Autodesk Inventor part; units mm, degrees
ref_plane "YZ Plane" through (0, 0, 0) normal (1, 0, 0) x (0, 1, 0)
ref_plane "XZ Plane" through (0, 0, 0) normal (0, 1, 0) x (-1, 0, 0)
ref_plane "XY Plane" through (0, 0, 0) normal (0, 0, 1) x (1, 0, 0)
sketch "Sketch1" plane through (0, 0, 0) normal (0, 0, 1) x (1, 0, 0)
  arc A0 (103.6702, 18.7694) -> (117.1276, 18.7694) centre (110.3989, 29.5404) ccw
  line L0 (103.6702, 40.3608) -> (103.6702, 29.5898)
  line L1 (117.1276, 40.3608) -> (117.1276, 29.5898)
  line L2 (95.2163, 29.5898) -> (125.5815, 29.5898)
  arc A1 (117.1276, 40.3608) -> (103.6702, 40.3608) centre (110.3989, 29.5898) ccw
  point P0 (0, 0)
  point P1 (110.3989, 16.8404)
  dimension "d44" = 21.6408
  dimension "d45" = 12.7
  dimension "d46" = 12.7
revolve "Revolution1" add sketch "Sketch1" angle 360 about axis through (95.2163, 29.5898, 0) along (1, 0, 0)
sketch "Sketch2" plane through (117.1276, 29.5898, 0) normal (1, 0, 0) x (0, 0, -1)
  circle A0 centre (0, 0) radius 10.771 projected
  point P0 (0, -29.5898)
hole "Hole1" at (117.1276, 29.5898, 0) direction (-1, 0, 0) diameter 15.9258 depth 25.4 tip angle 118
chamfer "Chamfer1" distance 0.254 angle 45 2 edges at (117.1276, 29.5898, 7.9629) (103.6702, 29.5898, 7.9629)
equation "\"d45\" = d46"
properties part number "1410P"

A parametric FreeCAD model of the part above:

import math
import FreeCAD as App
import Part
import Sketcher

V = App.Vector
Q = App.Units.Quantity


def edges_at(feature, points):
    """Names of the edges that pass closest to the given points."""
    edges = feature.Shape.Edges
    near = lambda p: min(range(len(edges)), key=lambda i: edges[i].distToShape(Part.Vertex(*p))[0])
    return sorted({f"Edge{near(p) + 1}" for p in points})

doc = App.newDocument("Part")
params = doc.addObject("Spreadsheet::Sheet", "Params")
for row, (alias, value) in enumerate([
    ("sketch1_radius", "0.5 in"),
    ("revolution_angle", "360 deg"),
    ("sketch2_diameter", "0.627 in"),
    ("hole_diameter", "0.627 in"),
    ("hole_depth", "1 in"),
    ("chamfer_size", "0.01 in"),
], start=1):
    params.set(f"A{row}", alias)
    params.set(f"B{row}", "=" + value)
    params.setAlias(f"B{row}", alias)

body = doc.addObject("PartDesign::Body", "Body")

# Sketch on XY plane
sketch1 = doc.addObject("Sketcher::SketchObject", "Sketch")
body.addObject(sketch1)
sketch1.AttachmentSupport = (doc.XY_Plane, [""])
sketch1.MapMode = "FlatFace"
sketch1.addGeometry(Part.ArcOfCircle(Part.Circle(V(110, 30, 0), V(0, 0, 1), 13), math.radians(58), math.radians(122)), False)
sketch1.addGeometry(Part.LineSegment(V(104, 40, 0), V(104, 30, 0)), False)
sketch1.addGeometry(Part.LineSegment(V(104, 30, 0), V(117, 30, 0)), False)
sketch1.addGeometry(Part.LineSegment(V(117, 30, 0), V(117, 40, 0)), False)
sketch1.addGeometry(Part.LineSegment(V(104, 30, 0), V(117, 30, 0)), True)  # axis
sketch1.addConstraint(Sketcher.Constraint("Coincident", 0, 2, 1, 1))
sketch1.addConstraint(Sketcher.Constraint("Coincident", 1, 2, 2, 1))
sketch1.addConstraint(Sketcher.Constraint("Coincident", 2, 2, 3, 1))
sketch1.addConstraint(Sketcher.Constraint("Coincident", 3, 2, 0, 1))
sketch1.addConstraint(Sketcher.Constraint("Vertical", 1))
sketch1.addConstraint(Sketcher.Constraint("Horizontal", 2))
sketch1.addConstraint(Sketcher.Constraint("Vertical", 3))
sketch1.addConstraint(Sketcher.Constraint("Horizontal", 4))
sketch1.addConstraint(Sketcher.Constraint("Coincident", 4, 1, 1, 2))
sketch1.addConstraint(Sketcher.Constraint("Horizontal", 0, 3, 1, 2))
sketch1.addConstraint(Sketcher.Constraint("Horizontal", 0, 2, 3, 2))
sketch1.addConstraint(Sketcher.Constraint("Vertical", 3, 2, 4, 2))
sketch1.addConstraint(Sketcher.Constraint("Radius", 0, Q("0.5 in")))
sketch1.addConstraint(Sketcher.Constraint("DistanceY", -1, 1, 0, 2, Q("1.589 in")))
sketch1.addConstraint(Sketcher.Constraint("DistanceX", 2, 1, 2, 2, 13.4574))
sketch1.addConstraint(Sketcher.Constraint("DistanceX", -1, 1, 0, 2, Q("4.0815 in")))
sketch1.setExpression("Constraints[12]", "Params.sketch1_radius")
revolution = doc.addObject("PartDesign::Revolution", "Revolution")
body.addObject(revolution)
revolution.Profile = sketch1
revolution.ReferenceAxis = (sketch1, ["Axis0"])
revolution.setExpression("Angle", "Params.revolution_angle")

# Sketch on YZ plane
sketch2 = doc.addObject("Sketcher::SketchObject", "Sketch001")
body.addObject(sketch2)
sketch2.AttachmentSupport = (doc.YZ_Plane, [""])
sketch2.MapMode = "FlatFace"
sketch2.AttachmentOffset = App.Placement(V(0, 0, 117.1276), App.Rotation())
sketch2.addGeometry(Part.Circle(V(30, 0, 0), V(0, 0, 1), 8), False)
sketch2.addConstraint(Sketcher.Constraint("PointOnObject", 0, 3, -1))
sketch2.addConstraint(Sketcher.Constraint("Diameter", 0, Q("0.627 in")))
sketch2.addConstraint(Sketcher.Constraint("DistanceX", -1, 1, 0, 3, 29.5898))
sketch2.setExpression("Constraints[1]", "Params.sketch2_diameter")
doc.recompute()
hole = doc.addObject("PartDesign::Hole", "Hole")
body.addObject(hole)
hole.Profile = sketch2
hole.ThreadType = "None"
hole.setExpression("Diameter", "Params.hole_diameter")
hole.DepthType = "Dimension"
hole.setExpression("Depth", "Params.hole_depth")
hole.DrillPoint = "Angled"
hole.DrillPointAngle = 118
doc.recompute()

chamfer = doc.addObject("PartDesign::Chamfer", "Chamfer")
body.addObject(chamfer)
chamfer.Base = (hole, edges_at(hole, [(117.128, 29.59, 7.963), (103.67, 29.59, 7.963)]))
chamfer.setExpression("Size", "Params.chamfer_size")

doc.recompute()
